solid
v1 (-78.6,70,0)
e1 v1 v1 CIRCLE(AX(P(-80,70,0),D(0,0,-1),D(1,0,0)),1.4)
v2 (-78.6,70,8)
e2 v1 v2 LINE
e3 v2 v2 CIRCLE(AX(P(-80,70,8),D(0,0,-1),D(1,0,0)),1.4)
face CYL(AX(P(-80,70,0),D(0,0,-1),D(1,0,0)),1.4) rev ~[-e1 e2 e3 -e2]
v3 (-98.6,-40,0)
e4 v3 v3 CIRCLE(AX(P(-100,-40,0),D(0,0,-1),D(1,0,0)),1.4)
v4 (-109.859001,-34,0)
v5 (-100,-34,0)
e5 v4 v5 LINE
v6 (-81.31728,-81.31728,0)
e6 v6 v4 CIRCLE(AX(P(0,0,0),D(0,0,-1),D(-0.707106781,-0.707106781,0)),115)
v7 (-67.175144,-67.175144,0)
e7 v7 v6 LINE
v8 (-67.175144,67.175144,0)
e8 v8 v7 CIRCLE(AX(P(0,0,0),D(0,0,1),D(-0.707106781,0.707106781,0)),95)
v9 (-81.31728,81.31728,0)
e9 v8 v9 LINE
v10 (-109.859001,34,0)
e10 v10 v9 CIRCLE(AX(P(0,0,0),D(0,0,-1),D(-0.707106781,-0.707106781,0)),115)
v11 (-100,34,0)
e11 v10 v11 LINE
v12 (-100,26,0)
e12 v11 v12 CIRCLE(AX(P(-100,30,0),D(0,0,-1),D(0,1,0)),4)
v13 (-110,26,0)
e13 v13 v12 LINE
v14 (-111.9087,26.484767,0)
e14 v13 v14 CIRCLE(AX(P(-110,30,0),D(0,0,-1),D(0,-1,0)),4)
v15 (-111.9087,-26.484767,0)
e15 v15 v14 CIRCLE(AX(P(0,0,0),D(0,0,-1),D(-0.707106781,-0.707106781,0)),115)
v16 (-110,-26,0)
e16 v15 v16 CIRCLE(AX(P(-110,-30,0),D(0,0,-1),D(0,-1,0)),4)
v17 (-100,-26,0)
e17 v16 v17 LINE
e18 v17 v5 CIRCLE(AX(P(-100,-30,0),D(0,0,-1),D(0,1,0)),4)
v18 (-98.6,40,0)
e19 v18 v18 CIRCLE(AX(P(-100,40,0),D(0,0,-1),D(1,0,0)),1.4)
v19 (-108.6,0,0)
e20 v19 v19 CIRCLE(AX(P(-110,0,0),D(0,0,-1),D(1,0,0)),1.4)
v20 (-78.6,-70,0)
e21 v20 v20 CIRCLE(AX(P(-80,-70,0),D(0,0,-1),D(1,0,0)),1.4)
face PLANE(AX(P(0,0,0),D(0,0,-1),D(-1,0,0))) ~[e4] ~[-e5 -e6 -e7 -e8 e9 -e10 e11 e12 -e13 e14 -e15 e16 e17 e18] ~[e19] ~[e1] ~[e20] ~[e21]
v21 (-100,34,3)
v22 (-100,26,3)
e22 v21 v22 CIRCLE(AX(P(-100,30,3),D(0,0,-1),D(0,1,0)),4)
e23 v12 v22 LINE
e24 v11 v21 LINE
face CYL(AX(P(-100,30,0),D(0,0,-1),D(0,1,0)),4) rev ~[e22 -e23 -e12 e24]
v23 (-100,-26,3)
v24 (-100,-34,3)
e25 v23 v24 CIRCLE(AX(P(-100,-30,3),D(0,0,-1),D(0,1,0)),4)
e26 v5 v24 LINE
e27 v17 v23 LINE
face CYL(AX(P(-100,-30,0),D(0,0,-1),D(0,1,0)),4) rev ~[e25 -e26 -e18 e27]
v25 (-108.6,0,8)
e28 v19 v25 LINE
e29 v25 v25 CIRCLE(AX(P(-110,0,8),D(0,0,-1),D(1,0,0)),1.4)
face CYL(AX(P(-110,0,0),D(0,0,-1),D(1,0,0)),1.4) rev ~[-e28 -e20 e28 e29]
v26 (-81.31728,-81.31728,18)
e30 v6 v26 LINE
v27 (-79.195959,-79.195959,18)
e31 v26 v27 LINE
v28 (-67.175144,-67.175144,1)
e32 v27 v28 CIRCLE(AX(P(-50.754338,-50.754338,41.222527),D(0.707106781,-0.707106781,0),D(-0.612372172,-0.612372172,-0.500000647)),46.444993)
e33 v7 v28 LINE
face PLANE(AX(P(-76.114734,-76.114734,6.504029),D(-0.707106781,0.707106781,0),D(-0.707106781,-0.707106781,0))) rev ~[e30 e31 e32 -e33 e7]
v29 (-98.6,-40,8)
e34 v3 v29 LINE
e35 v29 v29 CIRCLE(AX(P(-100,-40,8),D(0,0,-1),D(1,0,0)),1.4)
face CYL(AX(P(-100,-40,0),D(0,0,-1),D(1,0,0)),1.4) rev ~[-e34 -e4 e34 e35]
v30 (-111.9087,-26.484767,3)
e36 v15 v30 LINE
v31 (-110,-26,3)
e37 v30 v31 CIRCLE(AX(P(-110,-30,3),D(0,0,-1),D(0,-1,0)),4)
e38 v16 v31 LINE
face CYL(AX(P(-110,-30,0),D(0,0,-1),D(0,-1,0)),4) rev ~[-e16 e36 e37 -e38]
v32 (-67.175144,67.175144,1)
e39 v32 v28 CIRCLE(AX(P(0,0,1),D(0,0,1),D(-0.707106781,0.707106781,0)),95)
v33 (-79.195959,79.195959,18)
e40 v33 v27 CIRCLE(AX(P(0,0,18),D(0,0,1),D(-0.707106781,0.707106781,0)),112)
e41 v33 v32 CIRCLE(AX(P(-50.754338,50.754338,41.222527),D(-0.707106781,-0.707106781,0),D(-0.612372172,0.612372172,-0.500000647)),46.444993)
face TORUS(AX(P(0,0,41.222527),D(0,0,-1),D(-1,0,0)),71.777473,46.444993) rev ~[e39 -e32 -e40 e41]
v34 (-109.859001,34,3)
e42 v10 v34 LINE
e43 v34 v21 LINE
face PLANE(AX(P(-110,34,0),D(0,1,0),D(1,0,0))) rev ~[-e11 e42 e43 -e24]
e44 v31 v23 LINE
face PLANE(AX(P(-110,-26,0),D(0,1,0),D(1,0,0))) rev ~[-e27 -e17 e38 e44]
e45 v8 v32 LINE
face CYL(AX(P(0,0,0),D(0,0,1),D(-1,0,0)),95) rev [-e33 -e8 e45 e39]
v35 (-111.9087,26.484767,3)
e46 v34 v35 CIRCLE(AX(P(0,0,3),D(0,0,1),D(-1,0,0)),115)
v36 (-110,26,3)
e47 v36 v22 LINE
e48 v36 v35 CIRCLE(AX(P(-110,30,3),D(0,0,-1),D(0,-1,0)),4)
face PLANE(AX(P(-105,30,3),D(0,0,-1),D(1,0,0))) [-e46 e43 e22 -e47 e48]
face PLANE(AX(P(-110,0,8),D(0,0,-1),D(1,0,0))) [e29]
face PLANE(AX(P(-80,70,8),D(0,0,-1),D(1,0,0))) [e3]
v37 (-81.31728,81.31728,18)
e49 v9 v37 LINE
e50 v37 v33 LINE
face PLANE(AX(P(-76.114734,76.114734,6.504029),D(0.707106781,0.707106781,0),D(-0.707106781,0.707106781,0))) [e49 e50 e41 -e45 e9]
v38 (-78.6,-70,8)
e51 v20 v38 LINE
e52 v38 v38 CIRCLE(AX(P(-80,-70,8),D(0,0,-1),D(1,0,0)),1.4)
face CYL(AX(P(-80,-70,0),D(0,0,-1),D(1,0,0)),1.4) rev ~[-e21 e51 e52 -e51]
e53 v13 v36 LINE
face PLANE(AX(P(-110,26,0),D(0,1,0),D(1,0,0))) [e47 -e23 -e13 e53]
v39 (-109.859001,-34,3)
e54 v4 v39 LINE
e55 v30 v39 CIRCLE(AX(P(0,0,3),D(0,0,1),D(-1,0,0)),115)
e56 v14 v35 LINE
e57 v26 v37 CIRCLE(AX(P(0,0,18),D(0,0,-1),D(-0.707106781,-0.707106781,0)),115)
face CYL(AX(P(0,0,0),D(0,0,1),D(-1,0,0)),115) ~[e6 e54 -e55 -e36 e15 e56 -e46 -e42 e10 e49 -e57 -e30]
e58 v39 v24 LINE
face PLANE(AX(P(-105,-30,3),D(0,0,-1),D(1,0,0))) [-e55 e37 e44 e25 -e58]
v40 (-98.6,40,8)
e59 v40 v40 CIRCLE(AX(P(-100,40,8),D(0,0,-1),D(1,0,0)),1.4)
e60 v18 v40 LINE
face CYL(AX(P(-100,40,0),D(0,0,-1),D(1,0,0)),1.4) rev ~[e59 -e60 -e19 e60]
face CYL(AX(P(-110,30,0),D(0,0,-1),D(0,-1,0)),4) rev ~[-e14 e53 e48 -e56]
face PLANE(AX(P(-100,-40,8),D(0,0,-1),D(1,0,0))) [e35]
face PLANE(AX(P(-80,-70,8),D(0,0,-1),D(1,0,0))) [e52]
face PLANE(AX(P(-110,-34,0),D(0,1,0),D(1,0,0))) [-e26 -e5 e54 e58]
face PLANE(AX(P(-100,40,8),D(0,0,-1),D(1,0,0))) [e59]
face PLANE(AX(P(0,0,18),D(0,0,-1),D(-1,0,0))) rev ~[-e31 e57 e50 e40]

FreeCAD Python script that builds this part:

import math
import FreeCAD as App
import Part
import Sketcher
Q = App.Units.Quantity

doc = App.newDocument("Part")
body = doc.addObject("PartDesign::Body", "Body")

# Sketch on XZ plane
sketch1 = doc.addObject("Sketcher::SketchObject", "Sketch")
body.addObject(sketch1)
sketch1.AttachmentSupport = (doc.XZ_Plane, [""])
sketch1.MapMode = "FlatFace"
sketch1.addGeometry(Part.LineSegment(App.Vector(-115, 0, 0), App.Vector(-95, 0, 0)), False)
sketch1.addGeometry(Part.LineSegment(App.Vector(-95, 0, 0), App.Vector(-95, 1, 0)), False)
sketch1.addGeometry(Part.ArcOfCircle(Part.Circle(App.Vector(-71.8, 41.2, 0), App.Vector(0, 0, 1), 46.4), math.radians(-150), math.radians(-120)), False)
sketch1.addGeometry(Part.LineSegment(App.Vector(-112, 18, 0), App.Vector(-115, 18, 0)), False)
sketch1.addGeometry(Part.LineSegment(App.Vector(-115, 18, 0), App.Vector(-115, 0, 0)), False)
sketch1.addConstraint(Sketcher.Constraint("Coincident", 0, 2, 1, 1))
sketch1.addConstraint(Sketcher.Constraint("Coincident", 1, 2, 2, 2))
sketch1.addConstraint(Sketcher.Constraint("Coincident", 2, 1, 3, 1))
sketch1.addConstraint(Sketcher.Constraint("Coincident", 3, 2, 4, 1))
sketch1.addConstraint(Sketcher.Constraint("Coincident", 4, 2, 0, 1))
sketch1.addConstraint(Sketcher.Constraint("Horizontal", 0))
sketch1.addConstraint(Sketcher.Constraint("Vertical", 1))
sketch1.addConstraint(Sketcher.Constraint("Horizontal", 3))
sketch1.addConstraint(Sketcher.Constraint("Vertical", 4))
sketch1.addConstraint(Sketcher.Constraint("PointOnObject", 0, 2, -1))
sketch1.addConstraint(Sketcher.Constraint("DistanceX", 0, 1, 0, 2, Q("20 mm")))
sketch1.addConstraint(Sketcher.Constraint("DistanceX", 3, 2, 3, 1, Q("3 mm")))
sketch1.addConstraint(Sketcher.Constraint("DistanceY", 1, 1, 1, 2, Q("1 mm")))
sketch1.addConstraint(Sketcher.Constraint("DistanceY", 4, 2, 4, 1, Q("18 mm")))
sketch1.addConstraint(Sketcher.Constraint("DistanceX", 0, 2, -1, 1, Q("95 mm")))
sketch1.addConstraint(Sketcher.Constraint("Radius", 2, Q("46.444993 mm")))
revolution = doc.addObject("PartDesign::Revolution", "Revolution")
body.addObject(revolution)
revolution.Profile = sketch1
revolution.ReferenceAxis = (sketch1, ["V_Axis"])
revolution.Angle = 45

# Sketch on XZ plane
sketch2 = doc.addObject("Sketcher::SketchObject", "Sketch001")
body.addObject(sketch2)
sketch2.AttachmentSupport = (doc.XZ_Plane, [""])
sketch2.MapMode = "FlatFace"
sketch2.addGeometry(Part.LineSegment(App.Vector(-115, 0, 0), App.Vector(-95, 0, 0)), False)
sketch2.addGeometry(Part.LineSegment(App.Vector(-95, 0, 0), App.Vector(-95, 1, 0)), False)
sketch2.addGeometry(Part.ArcOfCircle(Part.Circle(App.Vector(-71.8, 41.2, 0), App.Vector(0, 0, 1), 46.4), math.radians(-150), math.radians(-120)), False)
sketch2.addGeometry(Part.LineSegment(App.Vector(-112, 18, 0), App.Vector(-115, 18, 0)), False)
sketch2.addGeometry(Part.LineSegment(App.Vector(-115, 18, 0), App.Vector(-115, 0, 0)), False)
sketch2.addConstraint(Sketcher.Constraint("Coincident", 0, 2, 1, 1))
sketch2.addConstraint(Sketcher.Constraint("Coincident", 1, 2, 2, 2))
sketch2.addConstraint(Sketcher.Constraint("Coincident", 2, 1, 3, 1))
sketch2.addConstraint(Sketcher.Constraint("Coincident", 3, 2, 4, 1))
sketch2.addConstraint(Sketcher.Constraint("Coincident", 4, 2, 0, 1))
sketch2.addConstraint(Sketcher.Constraint("Horizontal", 0))
sketch2.addConstraint(Sketcher.Constraint("Vertical", 1))
sketch2.addConstraint(Sketcher.Constraint("Horizontal", 3))
sketch2.addConstraint(Sketcher.Constraint("Vertical", 4))
sketch2.addConstraint(Sketcher.Constraint("PointOnObject", 0, 2, -1))
sketch2.addConstraint(Sketcher.Constraint("DistanceX", 0, 1, 0, 2, Q("20 mm")))
sketch2.addConstraint(Sketcher.Constraint("DistanceX", 3, 2, 3, 1, Q("3 mm")))
sketch2.addConstraint(Sketcher.Constraint("DistanceY", 1, 1, 1, 2, Q("1 mm")))
sketch2.addConstraint(Sketcher.Constraint("DistanceY", 4, 2, 4, 1, Q("18 mm")))
sketch2.addConstraint(Sketcher.Constraint("DistanceX", 0, 2, -1, 1, Q("95 mm")))
sketch2.addConstraint(Sketcher.Constraint("Radius", 2, Q("46.444993 mm")))
revolution2 = doc.addObject("PartDesign::Revolution", "Revolution001")
body.addObject(revolution2)
revolution2.Profile = sketch2
revolution2.ReferenceAxis = (sketch2, ["V_Axis"])
revolution2.Angle = 45
revolution2.Reversed = True

# Sketch on XY plane
sketch3 = doc.addObject("Sketcher::SketchObject", "Sketch002")
body.addObject(sketch3)
sketch3.AttachmentSupport = (doc.XY_Plane, [""])
sketch3.MapMode = "FlatFace"
sketch3.addGeometry(Part.ArcOfCircle(Part.Circle(App.Vector(-110, -30, 0), App.Vector(0, 0, 1), 4), math.radians(90), math.radians(270)), False)
sketch3.addGeometry(Part.LineSegment(App.Vector(-110, -26, 0), App.Vector(-100, -26, 0)), False)
sketch3.addGeometry(Part.ArcOfCircle(Part.Circle(App.Vector(-100, -30, 0), App.Vector(0, 0, 1), 4), math.radians(-90), math.radians(90)), False)
sketch3.addGeometry(Part.LineSegment(App.Vector(-100, -34, 0), App.Vector(-110, -34, 0)), False)
sketch3.addGeometry(Part.ArcOfCircle(Part.Circle(App.Vector(-110, 30, 0), App.Vector(0, 0, 1), 4), math.radians(90), math.radians(270)), False)
sketch3.addGeometry(Part.LineSegment(App.Vector(-110, 34, 0), App.Vector(-100, 34, 0)), False)
sketch3.addGeometry(Part.ArcOfCircle(Part.Circle(App.Vector(-100, 30, 0), App.Vector(0, 0, 1), 4), math.radians(-90), math.radians(90)), False)
sketch3.addGeometry(Part.LineSegment(App.Vector(-100, 26, 0), App.Vector(-110, 26, 0)), False)
sketch3.addConstraint(Sketcher.Constraint("Tangent", 0, 1, 1, 1))
sketch3.addConstraint(Sketcher.Constraint("Tangent", 1, 2, 2, 2))
sketch3.addConstraint(Sketcher.Constraint("Tangent", 2, 1, 3, 1))
sketch3.addConstraint(Sketcher.Constraint("Tangent", 3, 2, 0, 2))
sketch3.addConstraint(Sketcher.Constraint("Tangent", 4, 1, 5, 1))
sketch3.addConstraint(Sketcher.Constraint("Tangent", 5, 2, 6, 2))
sketch3.addConstraint(Sketcher.Constraint("Tangent", 6, 1, 7, 1))
sketch3.addConstraint(Sketcher.Constraint("Tangent", 7, 2, 4, 2))
sketch3.addConstraint(Sketcher.Constraint("Horizontal", 1))
sketch3.addConstraint(Sketcher.Constraint("Horizontal", 3))
sketch3.addConstraint(Sketcher.Constraint("Horizontal", 5))
sketch3.addConstraint(Sketcher.Constraint("Horizontal", 7))
sketch3.addConstraint(Sketcher.Constraint("Equal", 2, 4))
sketch3.addConstraint(Sketcher.Constraint("Symmetric", 0, 3, 4, 3, -1))
sketch3.addConstraint(Sketcher.Constraint("Vertical", 2, 3, 6, 3))
sketch3.addConstraint(Sketcher.Constraint("Radius", 0, Q("4 mm")))
sketch3.addConstraint(Sketcher.Constraint("DistanceX", 1, 1, 1, 2, Q("10 mm")))
sketch3.addConstraint(Sketcher.Constraint("DistanceX", 0, 3, -1, 1, Q("110 mm")))
sketch3.addConstraint(Sketcher.Constraint("DistanceY", 0, 3, -1, 1, Q("30 mm")))
pocket1 = doc.addObject("PartDesign::Pocket", "Pocket")
body.addObject(pocket1)
pocket1.Profile = sketch3
pocket1.Length = 3
pocket1.Reversed = True

# Sketch on XY plane
sketch4 = doc.addObject("Sketcher::SketchObject", "Sketch003")
body.addObject(sketch4)
sketch4.AttachmentSupport = (doc.XY_Plane, [""])
sketch4.MapMode = "FlatFace"
sketch4.addGeometry(Part.Circle(App.Vector(-80, -70, 0), App.Vector(0, 0, 1), 1.4), False)
sketch4.addGeometry(Part.Circle(App.Vector(-80, 70, 0), App.Vector(0, 0, 1), 1.4), False)
sketch4.addGeometry(Part.Circle(App.Vector(-110, 0, 0), App.Vector(0, 0, 1), 1.4), False)
sketch4.addGeometry(Part.Circle(App.Vector(-100, 40, 0), App.Vector(0, 0, 1), 1.4), False)
sketch4.addGeometry(Part.Circle(App.Vector(-100, -40, 0), App.Vector(0, 0, 1), 1.4), False)
sketch4.addConstraint(Sketcher.Constraint("Equal", 0, 1))
sketch4.addConstraint(Sketcher.Constraint("Equal", 1, 2))
sketch4.addConstraint(Sketcher.Constraint("Equal", 2, 3))
sketch4.addConstraint(Sketcher.Constraint("Equal", 3, 4))
sketch4.addConstraint(Sketcher.Constraint("Symmetric", 0, 3, 1, 3, -1))
sketch4.addConstraint(Sketcher.Constraint("Symmetric", 3, 3, 4, 3, -1))
sketch4.addConstraint(Sketcher.Constraint("PointOnObject", 2, 3, -1))
sketch4.addConstraint(Sketcher.Constraint("Diameter", 0, Q("2.8 mm")))
sketch4.addConstraint(Sketcher.Constraint("DistanceX", 0, 3, -1, 1, Q("80 mm")))
sketch4.addConstraint(Sketcher.Constraint("DistanceY", 0, 3, -1, 1, Q("70 mm")))
sketch4.addConstraint(Sketcher.Constraint("DistanceX", 2, 3, -1, 1, Q("110 mm")))
sketch4.addConstraint(Sketcher.Constraint("DistanceX", 3, 3, -1, 1, Q("100 mm")))
sketch4.addConstraint(Sketcher.Constraint("DistanceY", -1, 1, 3, 3, Q("40 mm")))
pocket2 = doc.addObject("PartDesign::Pocket", "Pocket001")
body.addObject(pocket2)
pocket2.Profile = sketch4
pocket2.Length = 8
pocket2.Reversed = True

doc.recompute()
